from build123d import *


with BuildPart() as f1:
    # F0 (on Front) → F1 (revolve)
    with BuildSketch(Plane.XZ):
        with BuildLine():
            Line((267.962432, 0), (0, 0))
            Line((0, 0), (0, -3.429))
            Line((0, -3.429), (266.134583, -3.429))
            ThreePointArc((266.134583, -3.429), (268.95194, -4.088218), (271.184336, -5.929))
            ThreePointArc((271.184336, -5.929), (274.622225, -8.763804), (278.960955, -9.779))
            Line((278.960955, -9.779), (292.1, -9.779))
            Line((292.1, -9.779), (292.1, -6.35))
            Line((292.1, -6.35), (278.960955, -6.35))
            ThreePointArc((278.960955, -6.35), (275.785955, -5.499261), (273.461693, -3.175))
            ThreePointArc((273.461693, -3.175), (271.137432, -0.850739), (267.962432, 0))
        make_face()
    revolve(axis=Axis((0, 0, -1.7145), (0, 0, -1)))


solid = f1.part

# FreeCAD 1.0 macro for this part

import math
import FreeCAD as App
import Part
import Sketcher
from FreeCAD import Vector
Q = App.Units.Quantity

doc = App.newDocument("Part")
body = doc.addObject("PartDesign::Body", "Body")

# Sketch on XZ plane
sketch1 = body.newObject("Sketcher::SketchObject", "Sketch")
sketch1.AttachmentSupport = (doc.getObject("XZ_Plane"), [""])
sketch1.MapMode = "FlatFace"
sketch1.addGeometry([
    Part.LineSegment(Vector(268, 0, 0), Vector(0, 0, 0)),  # 0
    Part.LineSegment(Vector(0, 0, 0), Vector(0, -3.4, 0)),  # 1
    Part.LineSegment(Vector(0, -3.4, 0), Vector(266.1, -3.4, 0)),  # 2
    Part.ArcOfCircle(Part.Circle(Vector(266.1, -9.8, 0), Vector(0, 0, 1), 6.4), math.radians(37), math.radians(90)),  # 3
    Part.ArcOfCircle(Part.Circle(Vector(279, 0, 0), Vector(0, 0, 1), 9.8), math.radians(-143), math.radians(-90)),  # 4
    Part.LineSegment(Vector(279, -9.8, 0), Vector(292.1, -9.8, 0)),  # 5
    Part.LineSegment(Vector(292.1, -9.8, 0), Vector(292.1, -6.3, 0)),  # 6
    Part.LineSegment(Vector(292.1, -6.3, 0), Vector(279, -6.3, 0)),  # 7
    Part.ArcOfCircle(Part.Circle(Vector(279, 0, 0), Vector(0, 0, 1), 6.4), math.radians(-150), math.radians(-90)),  # 8
    Part.ArcOfCircle(Part.Circle(Vector(268, -6.4, 0), Vector(0, 0, 1), 6.4), math.radians(30), math.radians(90)),  # 9
], False)
sketch1.addConstraint([
    Sketcher.Constraint("Coincident", 0, 2, 1, 1),
    Sketcher.Constraint("Coincident", 1, 2, 2, 1),
    Sketcher.Constraint("Tangent", 2, 2, 3, 2),
    Sketcher.Constraint("Tangent", 3, 1, 4, 1),
    Sketcher.Constraint("Tangent", 4, 2, 5, 1),
    Sketcher.Constraint("Coincident", 5, 2, 6, 1),
    Sketcher.Constraint("Coincident", 6, 2, 7, 1),
    Sketcher.Constraint("Tangent", 7, 2, 8, 2),
    Sketcher.Constraint("Tangent", 8, 1, 9, 1),
    Sketcher.Constraint("Tangent", 9, 2, 0, 1),
    Sketcher.Constraint("Horizontal", 0),
    Sketcher.Constraint("Vertical", 1),
    Sketcher.Constraint("Horizontal", 2),
    Sketcher.Constraint("Horizontal", 5),
    Sketcher.Constraint("Vertical", 6),
    Sketcher.Constraint("Horizontal", 7),
    Sketcher.Constraint("Coincident", 0, 2, -1, 1),
    Sketcher.Constraint("Coincident", 8, 3, 4, 3),
    Sketcher.Constraint("Equal", 3, 9),
    Sketcher.Constraint("PointOnObject", 4, 3, -1),
    Sketcher.Constraint("Horizontal", 3, 3, 4, 2),
    Sketcher.Constraint("Horizontal", 9, 3, 6, 2),
    Sketcher.Constraint("Radius", 3, Q("0.2500001 in")),
    Sketcher.Constraint("Radius", 4, Q("0.3850001 in")),
    Sketcher.Constraint("DistanceX", -1, 1, 5, 2, Q("11.5 in")),
    Sketcher.Constraint("DistanceX", 0, 2, 0, 1, 267.962432),
])
revolution = body.newObject("PartDesign::Revolution", "Revolution")
revolution.Profile = sketch1
revolution.ReferenceAxis = (sketch1, ["V_Axis"])
revolution.Angle = 360

doc.recompute()
